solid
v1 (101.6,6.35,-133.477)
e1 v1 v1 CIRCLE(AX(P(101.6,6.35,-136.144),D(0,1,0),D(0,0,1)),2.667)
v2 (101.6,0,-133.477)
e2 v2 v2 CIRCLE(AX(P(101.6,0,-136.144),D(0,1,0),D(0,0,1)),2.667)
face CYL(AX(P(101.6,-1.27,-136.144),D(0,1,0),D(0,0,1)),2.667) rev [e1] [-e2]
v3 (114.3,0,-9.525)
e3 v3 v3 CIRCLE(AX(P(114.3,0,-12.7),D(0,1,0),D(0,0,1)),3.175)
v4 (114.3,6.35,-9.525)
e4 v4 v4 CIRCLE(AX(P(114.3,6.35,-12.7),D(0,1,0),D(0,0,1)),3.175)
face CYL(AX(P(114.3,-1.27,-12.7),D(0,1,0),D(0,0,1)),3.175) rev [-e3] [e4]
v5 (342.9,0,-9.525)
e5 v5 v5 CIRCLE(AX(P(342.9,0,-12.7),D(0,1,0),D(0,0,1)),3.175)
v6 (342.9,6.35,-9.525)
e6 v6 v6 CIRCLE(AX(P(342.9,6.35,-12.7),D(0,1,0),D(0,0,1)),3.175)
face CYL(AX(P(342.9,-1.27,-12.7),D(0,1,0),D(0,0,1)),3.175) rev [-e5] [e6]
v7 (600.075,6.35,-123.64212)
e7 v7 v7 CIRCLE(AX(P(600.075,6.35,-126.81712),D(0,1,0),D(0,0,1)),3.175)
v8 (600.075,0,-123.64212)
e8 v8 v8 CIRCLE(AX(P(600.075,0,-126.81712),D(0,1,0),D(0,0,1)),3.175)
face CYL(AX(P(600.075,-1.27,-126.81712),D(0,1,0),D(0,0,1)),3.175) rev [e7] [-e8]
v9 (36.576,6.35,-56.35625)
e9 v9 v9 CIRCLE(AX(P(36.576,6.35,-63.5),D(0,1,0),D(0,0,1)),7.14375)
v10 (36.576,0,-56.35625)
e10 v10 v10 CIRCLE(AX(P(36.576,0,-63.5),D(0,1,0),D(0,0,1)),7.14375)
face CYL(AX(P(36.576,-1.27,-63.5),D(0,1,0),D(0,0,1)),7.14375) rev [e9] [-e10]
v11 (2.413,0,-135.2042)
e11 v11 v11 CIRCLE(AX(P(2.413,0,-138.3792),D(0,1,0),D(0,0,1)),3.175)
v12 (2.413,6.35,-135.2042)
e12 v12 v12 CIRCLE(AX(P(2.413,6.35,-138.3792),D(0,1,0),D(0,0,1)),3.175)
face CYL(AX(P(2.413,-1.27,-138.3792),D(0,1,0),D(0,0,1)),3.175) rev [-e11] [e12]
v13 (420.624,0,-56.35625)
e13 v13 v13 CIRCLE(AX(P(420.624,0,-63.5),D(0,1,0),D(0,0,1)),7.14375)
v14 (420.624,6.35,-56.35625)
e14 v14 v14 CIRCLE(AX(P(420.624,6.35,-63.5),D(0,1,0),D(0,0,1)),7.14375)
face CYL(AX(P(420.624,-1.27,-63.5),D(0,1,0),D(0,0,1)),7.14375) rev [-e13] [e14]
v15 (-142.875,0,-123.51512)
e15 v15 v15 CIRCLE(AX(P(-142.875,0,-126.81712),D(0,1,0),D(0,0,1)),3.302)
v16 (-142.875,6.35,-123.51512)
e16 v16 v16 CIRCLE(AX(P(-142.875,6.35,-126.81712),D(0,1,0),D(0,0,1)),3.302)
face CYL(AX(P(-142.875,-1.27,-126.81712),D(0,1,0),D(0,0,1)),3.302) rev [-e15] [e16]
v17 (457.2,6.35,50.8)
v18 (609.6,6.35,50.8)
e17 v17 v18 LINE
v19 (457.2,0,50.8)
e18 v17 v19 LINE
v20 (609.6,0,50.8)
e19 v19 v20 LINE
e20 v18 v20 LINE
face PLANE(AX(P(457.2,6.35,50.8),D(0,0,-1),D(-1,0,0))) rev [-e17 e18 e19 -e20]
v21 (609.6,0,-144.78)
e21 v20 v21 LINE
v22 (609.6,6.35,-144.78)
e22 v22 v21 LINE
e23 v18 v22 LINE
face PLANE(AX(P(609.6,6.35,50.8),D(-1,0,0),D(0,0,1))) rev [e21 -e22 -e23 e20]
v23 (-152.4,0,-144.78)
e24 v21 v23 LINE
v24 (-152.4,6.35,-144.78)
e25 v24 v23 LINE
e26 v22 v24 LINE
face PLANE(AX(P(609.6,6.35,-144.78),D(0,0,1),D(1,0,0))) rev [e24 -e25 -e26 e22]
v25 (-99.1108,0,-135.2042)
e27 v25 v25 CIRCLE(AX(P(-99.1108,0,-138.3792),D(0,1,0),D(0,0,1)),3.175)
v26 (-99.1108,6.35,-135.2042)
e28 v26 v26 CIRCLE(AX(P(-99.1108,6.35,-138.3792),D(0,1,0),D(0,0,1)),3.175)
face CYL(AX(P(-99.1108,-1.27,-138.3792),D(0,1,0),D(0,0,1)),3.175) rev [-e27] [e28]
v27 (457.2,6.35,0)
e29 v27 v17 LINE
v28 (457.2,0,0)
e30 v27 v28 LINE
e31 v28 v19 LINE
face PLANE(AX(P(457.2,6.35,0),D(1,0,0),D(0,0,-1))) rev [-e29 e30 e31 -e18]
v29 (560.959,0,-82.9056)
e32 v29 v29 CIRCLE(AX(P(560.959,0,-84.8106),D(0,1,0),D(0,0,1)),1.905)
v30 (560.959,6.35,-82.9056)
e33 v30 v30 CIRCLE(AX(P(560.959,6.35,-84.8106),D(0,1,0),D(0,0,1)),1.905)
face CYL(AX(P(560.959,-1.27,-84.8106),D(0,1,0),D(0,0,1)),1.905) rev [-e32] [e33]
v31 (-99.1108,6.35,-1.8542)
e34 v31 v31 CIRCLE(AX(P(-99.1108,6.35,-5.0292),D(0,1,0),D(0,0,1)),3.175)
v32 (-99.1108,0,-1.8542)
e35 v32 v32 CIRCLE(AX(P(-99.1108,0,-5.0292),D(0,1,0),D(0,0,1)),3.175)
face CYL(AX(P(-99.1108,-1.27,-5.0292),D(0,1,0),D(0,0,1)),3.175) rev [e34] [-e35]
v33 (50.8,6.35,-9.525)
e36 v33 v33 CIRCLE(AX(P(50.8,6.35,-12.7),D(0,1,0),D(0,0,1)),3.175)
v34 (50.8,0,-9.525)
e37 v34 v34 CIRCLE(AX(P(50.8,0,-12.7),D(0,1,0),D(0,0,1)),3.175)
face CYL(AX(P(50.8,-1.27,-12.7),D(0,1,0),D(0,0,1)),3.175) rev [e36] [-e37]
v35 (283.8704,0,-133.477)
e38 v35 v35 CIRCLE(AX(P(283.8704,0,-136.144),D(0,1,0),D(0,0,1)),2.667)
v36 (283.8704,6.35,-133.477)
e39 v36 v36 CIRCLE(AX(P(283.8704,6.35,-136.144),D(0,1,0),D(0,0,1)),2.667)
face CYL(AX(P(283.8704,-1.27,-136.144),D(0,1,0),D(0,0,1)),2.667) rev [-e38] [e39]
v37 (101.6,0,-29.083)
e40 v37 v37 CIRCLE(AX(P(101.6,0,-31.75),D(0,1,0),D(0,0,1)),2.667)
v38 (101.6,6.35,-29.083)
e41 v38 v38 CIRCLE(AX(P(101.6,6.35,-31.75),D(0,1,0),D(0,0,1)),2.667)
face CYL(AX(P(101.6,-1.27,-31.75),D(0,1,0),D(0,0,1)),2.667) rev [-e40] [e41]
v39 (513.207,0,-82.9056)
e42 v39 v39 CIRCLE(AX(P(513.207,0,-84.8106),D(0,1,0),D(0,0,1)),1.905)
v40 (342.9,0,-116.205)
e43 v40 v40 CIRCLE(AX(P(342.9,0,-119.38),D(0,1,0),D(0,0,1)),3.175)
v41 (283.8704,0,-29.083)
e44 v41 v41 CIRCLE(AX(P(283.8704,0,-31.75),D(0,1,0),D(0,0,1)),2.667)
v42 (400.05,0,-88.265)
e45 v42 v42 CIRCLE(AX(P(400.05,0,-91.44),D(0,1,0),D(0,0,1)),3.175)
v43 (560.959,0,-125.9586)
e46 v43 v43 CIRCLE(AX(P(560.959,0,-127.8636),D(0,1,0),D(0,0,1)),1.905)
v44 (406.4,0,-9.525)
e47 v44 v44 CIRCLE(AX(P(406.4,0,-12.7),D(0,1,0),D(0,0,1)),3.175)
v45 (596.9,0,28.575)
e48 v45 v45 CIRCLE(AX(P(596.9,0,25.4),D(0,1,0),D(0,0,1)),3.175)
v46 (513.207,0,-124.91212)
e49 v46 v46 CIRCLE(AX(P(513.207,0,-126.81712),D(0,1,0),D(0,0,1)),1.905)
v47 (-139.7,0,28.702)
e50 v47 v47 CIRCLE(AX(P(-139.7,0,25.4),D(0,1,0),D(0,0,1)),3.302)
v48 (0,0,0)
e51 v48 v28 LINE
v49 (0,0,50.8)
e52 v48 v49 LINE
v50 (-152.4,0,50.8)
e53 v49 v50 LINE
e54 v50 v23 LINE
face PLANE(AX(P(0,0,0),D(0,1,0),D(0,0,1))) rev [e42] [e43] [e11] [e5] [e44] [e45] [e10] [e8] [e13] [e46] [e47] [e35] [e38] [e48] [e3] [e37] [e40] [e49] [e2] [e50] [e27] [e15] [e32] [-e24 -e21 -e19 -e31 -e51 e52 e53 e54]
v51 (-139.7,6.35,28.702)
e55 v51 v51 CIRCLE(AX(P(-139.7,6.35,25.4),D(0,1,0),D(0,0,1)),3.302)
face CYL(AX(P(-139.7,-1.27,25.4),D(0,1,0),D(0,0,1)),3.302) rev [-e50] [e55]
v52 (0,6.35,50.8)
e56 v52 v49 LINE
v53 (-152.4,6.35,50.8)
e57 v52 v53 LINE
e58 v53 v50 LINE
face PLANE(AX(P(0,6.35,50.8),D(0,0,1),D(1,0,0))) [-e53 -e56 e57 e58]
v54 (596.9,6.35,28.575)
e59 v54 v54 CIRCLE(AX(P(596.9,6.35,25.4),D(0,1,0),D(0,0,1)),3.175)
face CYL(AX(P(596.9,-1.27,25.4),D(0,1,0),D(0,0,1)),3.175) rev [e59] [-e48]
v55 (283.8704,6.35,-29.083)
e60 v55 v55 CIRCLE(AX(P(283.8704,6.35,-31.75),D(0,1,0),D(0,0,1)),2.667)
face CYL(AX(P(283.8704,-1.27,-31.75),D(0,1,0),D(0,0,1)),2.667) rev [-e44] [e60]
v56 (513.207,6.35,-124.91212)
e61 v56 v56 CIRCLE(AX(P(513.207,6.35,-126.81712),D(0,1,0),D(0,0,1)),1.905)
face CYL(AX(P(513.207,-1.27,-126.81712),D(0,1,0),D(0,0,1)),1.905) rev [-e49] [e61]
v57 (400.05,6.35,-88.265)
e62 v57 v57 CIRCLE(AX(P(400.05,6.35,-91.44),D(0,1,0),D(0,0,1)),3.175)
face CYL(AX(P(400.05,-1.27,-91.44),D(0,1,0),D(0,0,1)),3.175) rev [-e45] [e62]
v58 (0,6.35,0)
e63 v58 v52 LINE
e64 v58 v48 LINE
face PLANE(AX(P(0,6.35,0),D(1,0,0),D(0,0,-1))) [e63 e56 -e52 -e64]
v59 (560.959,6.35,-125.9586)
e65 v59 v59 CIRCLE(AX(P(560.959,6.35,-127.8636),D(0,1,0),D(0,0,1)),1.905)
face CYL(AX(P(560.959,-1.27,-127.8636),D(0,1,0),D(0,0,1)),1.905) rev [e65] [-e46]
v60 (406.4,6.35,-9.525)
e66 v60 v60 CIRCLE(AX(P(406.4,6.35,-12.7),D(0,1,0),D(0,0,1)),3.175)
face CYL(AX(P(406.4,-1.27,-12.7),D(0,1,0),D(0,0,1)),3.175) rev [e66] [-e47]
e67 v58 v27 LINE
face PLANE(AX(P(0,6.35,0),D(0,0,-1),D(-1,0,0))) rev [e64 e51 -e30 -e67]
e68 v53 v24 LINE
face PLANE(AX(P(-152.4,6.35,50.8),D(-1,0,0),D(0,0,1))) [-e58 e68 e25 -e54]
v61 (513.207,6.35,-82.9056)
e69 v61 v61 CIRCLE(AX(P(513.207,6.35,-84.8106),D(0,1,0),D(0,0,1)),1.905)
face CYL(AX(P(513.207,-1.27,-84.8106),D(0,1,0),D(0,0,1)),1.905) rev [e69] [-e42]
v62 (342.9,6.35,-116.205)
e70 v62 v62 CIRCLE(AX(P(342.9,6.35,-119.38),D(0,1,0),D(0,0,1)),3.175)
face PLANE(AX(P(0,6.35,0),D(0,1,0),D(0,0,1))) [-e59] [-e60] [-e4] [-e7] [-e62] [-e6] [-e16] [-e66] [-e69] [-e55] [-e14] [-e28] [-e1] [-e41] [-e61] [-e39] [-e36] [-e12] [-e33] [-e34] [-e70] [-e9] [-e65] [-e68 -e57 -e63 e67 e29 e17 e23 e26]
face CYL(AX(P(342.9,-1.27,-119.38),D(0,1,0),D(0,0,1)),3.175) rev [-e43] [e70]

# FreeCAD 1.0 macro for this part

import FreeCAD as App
import Part
import Sketcher

V = App.Vector
Q = App.Units.Quantity

doc = App.newDocument("Part")
params = doc.addObject("Spreadsheet::Sheet", "Params")
for row, (alias, value) in enumerate([
    ("sketch1_width", "18 in"),
    ("sketch1_width2", "6 in"),
    ("sketch1_height", "2 in"),
    ("sketch1_height2", "7.7 in"),
    ("pad1_length", "0.25 in"),
    ("sketch2_diameter", "0.26 in"),
    ("sketch2_diameter2", "0.25 in"),
    ("sketch2_diameter3", "0.15 in"),
    ("sketch2_diameter4", "0.5625 in"),
    ("pocket1_length", "0.3 in"),
    ("sketch3_diameter", "0.21 in"),
    ("sketch3_diameter2", "0.25 in"),
    ("pocket2_length", "0.3 in"),
], start=1):
    params.set(f"A{row}", alias)
    params.set(f"B{row}", "=" + value)
    params.setAlias(f"B{row}", alias)

body = doc.addObject("PartDesign::Body", "Body")

# Sketch on XZ plane
sketch1 = body.newObject("Sketcher::SketchObject", "Sketch")
sketch1.AttachmentSupport = (doc.getObject("XZ_Plane"), [""])
sketch1.MapMode = "FlatFace"
sketch1.addGeometry([
    Part.LineSegment(V(0, 0, 0), V(457.2, 0, 0)),  # 0
    Part.LineSegment(V(457.2, 0, 0), V(457.2, 50.8, 0)),  # 1
    Part.LineSegment(V(457.2, 50.8, 0), V(609.6, 50.8, 0)),  # 2
    Part.LineSegment(V(609.6, 50.8, 0), V(609.6, -144.78, 0)),  # 3
    Part.LineSegment(V(609.6, -144.78, 0), V(-152.4, -144.78, 0)),  # 4
    Part.LineSegment(V(-152.4, -144.78, 0), V(-152.4, 50.8, 0)),  # 5
    Part.LineSegment(V(-152.4, 50.8, 0), V(0, 50.8, 0)),  # 6
    Part.LineSegment(V(0, 50.8, 0), V(0, 0, 0)),  # 7
], False)
sketch1.addConstraint([
    Sketcher.Constraint("Coincident", 0, 2, 1, 1),
    Sketcher.Constraint("Coincident", 1, 2, 2, 1),
    Sketcher.Constraint("Coincident", 2, 2, 3, 1),
    Sketcher.Constraint("Coincident", 3, 2, 4, 1),
    Sketcher.Constraint("Coincident", 4, 2, 5, 1),
    Sketcher.Constraint("Coincident", 5, 2, 6, 1),
    Sketcher.Constraint("Coincident", 6, 2, 7, 1),
    Sketcher.Constraint("Coincident", 7, 2, 0, 1),
    Sketcher.Constraint("Horizontal", 0),
    Sketcher.Constraint("Vertical", 1),
    Sketcher.Constraint("Horizontal", 2),
    Sketcher.Constraint("Vertical", 3),
    Sketcher.Constraint("Horizontal", 4),
    Sketcher.Constraint("Vertical", 5),
    Sketcher.Constraint("Horizontal", 6),
    Sketcher.Constraint("Vertical", 7),
    Sketcher.Constraint("Coincident", 7, 2, -1, 1),
    Sketcher.Constraint("Horizontal", 2, 2, 5, 2),
    Sketcher.Constraint("Equal", 2, 6),
    Sketcher.Constraint("DistanceX", 0, 1, 0, 2, Q("18 in")),
    Sketcher.Constraint("DistanceX", 2, 1, 2, 2, Q("6 in")),
    Sketcher.Constraint("DistanceY", 1, 1, 1, 2, Q("2 in")),
    Sketcher.Constraint("DistanceY", 3, 2, 3, 1, Q("7.7 in")),
])
sketch1.setExpression("Constraints[19]", "Params.sketch1_width")
sketch1.setExpression("Constraints[20]", "Params.sketch1_width2")
sketch1.setExpression("Constraints[21]", "Params.sketch1_height")
sketch1.setExpression("Constraints[22]", "Params.sketch1_height2")
pad1 = body.newObject("PartDesign::Pad", "Pad")
pad1.Profile = sketch1
pad1.setExpression("Length", "Params.pad1_length")
pad1.Reversed = True

# Sketch on XZ plane
sketch2 = body.newObject("Sketcher::SketchObject", "Sketch001")
sketch2.AttachmentSupport = (doc.getObject("XZ_Plane"), [""])
sketch2.MapMode = "FlatFace"
sketch2.AttachmentOffset = App.Placement(V(0, 0, -0.25 * 25.4), App.Rotation())
sketch2.addGeometry([
    Part.Circle(V(-139.7, 25.4, 0), V(0, 0, 1), 3.302),  # 0
    Part.Circle(V(-99.1108, -5.0292, 0), V(0, 0, 1), 3.175),  # 1
    Part.Circle(V(-142.875, -126.81712, 0), V(0, 0, 1), 3.302),  # 2
    Part.Circle(V(-99.1108, -138.3792, 0), V(0, 0, 1), 3.175),  # 3
    Part.Circle(V(2.413, -138.3792, 0), V(0, 0, 1), 3.175),  # 4
    Part.Circle(V(36.576, -63.5, 0), V(0, 0, 1), 7.14375),  # 5
    Part.Circle(V(600.075, -126.81712, 0), V(0, 0, 1), 3.175),  # 6
    Part.Circle(V(596.9, 25.4, 0), V(0, 0, 1), 3.175),  # 7
    Part.Circle(V(560.959, -127.8636, 0), V(0, 0, 1), 1.905),  # 8
    Part.Circle(V(513.207, -84.8106, 0), V(0, 0, 1), 1.905),  # 9
    Part.Circle(V(560.959, -84.8106, 0), V(0, 0, 1), 1.905),  # 10
    Part.Circle(V(513.207, -126.81712, 0), V(0, 0, 1), 1.905),  # 11
    Part.Circle(V(420.624, -63.5, 0), V(0, 0, 1), 7.14375),  # 12
], False)
sketch2.addConstraint([
    Sketcher.Constraint("Equal", 0, 2),
    Sketcher.Constraint("Equal", 1, 3),
    Sketcher.Constraint("Equal", 3, 4),
    Sketcher.Constraint("Equal", 4, 6),
    Sketcher.Constraint("Equal", 6, 7),
    Sketcher.Constraint("Equal", 8, 9),
    Sketcher.Constraint("Equal", 9, 10),
    Sketcher.Constraint("Equal", 10, 11),
    Sketcher.Constraint("Equal", 5, 12),
    Sketcher.Constraint("Horizontal", 3, 3, 4, 3),
    Sketcher.Constraint("Horizontal", 2, 3, 6, 3),
    Sketcher.Constraint("Horizontal", 0, 3, 7, 3),
    Sketcher.Constraint("Horizontal", 9, 3, 10, 3),
    Sketcher.Constraint("Horizontal", 6, 3, 11, 3),
    Sketcher.Constraint("Horizontal", 5, 3, 12, 3),
    Sketcher.Constraint("Vertical", 1, 3, 3, 3),
    Sketcher.Constraint("Vertical", 8, 3, 10, 3),
    Sketcher.Constraint("Vertical", 9, 3, 11, 3),
    Sketcher.Constraint("Diameter", 0, Q("0.26 in")),
    Sketcher.Constraint("Diameter", 1, Q("0.25 in")),
    Sketcher.Constraint("Diameter", 8, Q("0.15 in")),
    Sketcher.Constraint("Diameter", 5, Q("0.5625 in")),
    Sketcher.Constraint("DistanceY", -1, 1, 0, 3, Q("1 in")),
    Sketcher.Constraint("DistanceX", 0, 3, -1, 1, Q("5.5 in")),
    Sketcher.Constraint("DistanceY", 5, 3, -1, 1, Q("2.5 in")),
    Sketcher.Constraint("DistanceX", -1, 1, 7, 3, Q("23.5 in")),
    Sketcher.Constraint("DistanceX", -1, 1, 5, 3, Q("1.44 in")),
    Sketcher.Constraint("DistanceX", -1, 1, 12, 3, Q("16.56 in")),
    Sketcher.Constraint("DistanceY", 3, 3, 1, 3, Q("5.25 in")),
    Sketcher.Constraint("DistanceX", 2, 3, 4, 3, Q("5.72 in")),
    Sketcher.Constraint("DistanceX", 4, 3, 6, 3, Q("23.53 in")),
    Sketcher.Constraint("DistanceX", 8, 3, 6, 3, Q("1.54 in")),
    Sketcher.Constraint("DistanceX", 9, 3, 8, 3, Q("1.88 in")),
    Sketcher.Constraint("DistanceX", 1, 3, -1, 1, Q("3.902 in")),
    Sketcher.Constraint("DistanceY", 1, 3, -1, 1, Q("0.198 in")),
    Sketcher.Constraint("DistanceX", 2, 3, -1, 1, Q("5.625 in")),
    Sketcher.Constraint("DistanceY", 8, 3, -1, 1, Q("5.034 in")),
    Sketcher.Constraint("DistanceY", 9, 3, -1, 1, Q("3.339 in")),
    Sketcher.Constraint("DistanceY", 2, 3, -1, 1, Q("4.9928 in")),
])
sketch2.setExpression("Constraints[18]", "Params.sketch2_diameter")
sketch2.setExpression("Constraints[19]", "Params.sketch2_diameter2")
sketch2.setExpression("Constraints[20]", "Params.sketch2_diameter3")
sketch2.setExpression("Constraints[21]", "Params.sketch2_diameter4")
pocket1 = body.newObject("PartDesign::Pocket", "Pocket")
pocket1.Profile = sketch2
pocket1.setExpression("Length", "Params.pocket1_length")
pocket1.Reversed = True

# Sketch on XZ plane
sketch3 = body.newObject("Sketcher::SketchObject", "Sketch002")
sketch3.AttachmentSupport = (doc.getObject("XZ_Plane"), [""])
sketch3.MapMode = "FlatFace"
sketch3.AttachmentOffset = App.Placement(V(0, 0, -0.25 * 25.4), App.Rotation())
sketch3.addGeometry([
    Part.Circle(V(101.6, -136.144, 0), V(0, 0, 1), 2.667),  # 0
    Part.Circle(V(101.6, -31.75, 0), V(0, 0, 1), 2.667),  # 1
    Part.Circle(V(400.05, -91.44, 0), V(0, 0, 1), 3.175),  # 2
    Part.Circle(V(406.4, -12.7, 0), V(0, 0, 1), 3.175),  # 3
    Part.Circle(V(342.9, -119.38, 0), V(0, 0, 1), 3.175),  # 4
    Part.Circle(V(342.9, -12.7, 0), V(0, 0, 1), 3.175),  # 5
    Part.Circle(V(283.8704, -136.144, 0), V(0, 0, 1), 2.667),  # 6
    Part.Circle(V(283.8704, -31.75, 0), V(0, 0, 1), 2.667),  # 7
    Part.Circle(V(114.3, -12.7, 0), V(0, 0, 1), 3.175),  # 8
    Part.Circle(V(50.8, -12.7, 0), V(0, 0, 1), 3.175),  # 9
], False)
sketch3.addConstraint([
    Sketcher.Constraint("Equal", 0, 1),
    Sketcher.Constraint("Equal", 2, 3),
    Sketcher.Constraint("Equal", 3, 4),
    Sketcher.Constraint("Equal", 4, 5),
    Sketcher.Constraint("Equal", 1, 6),
    Sketcher.Constraint("Equal", 6, 7),
    Sketcher.Constraint("Equal", 5, 8),
    Sketcher.Constraint("Equal", 8, 9),
    Sketcher.Constraint("Horizontal", 3, 3, 5, 3),
    Sketcher.Constraint("Horizontal", 0, 3, 6, 3),
    Sketcher.Constraint("Horizontal", 1, 3, 7, 3),
    Sketcher.Constraint("Horizontal", 5, 3, 8, 3),
    Sketcher.Constraint("Horizontal", 8, 3, 9, 3),
    Sketcher.Constraint("Vertical", 0, 3, 1, 3),
    Sketcher.Constraint("Vertical", 4, 3, 5, 3),
    Sketcher.Constraint("Vertical", 6, 3, 7, 3),
    Sketcher.Constraint("Diameter", 0, Q("0.21 in")),
    Sketcher.Constraint("Diameter", 2, Q("0.25 in")),
    Sketcher.Constraint("DistanceX", -1, 1, 0, 3, Q("4 in")),
    Sketcher.Constraint("DistanceX", -1, 1, 3, 3, Q("16 in")),
    Sketcher.Constraint("DistanceX", -1, 1, 9, 3, Q("2 in")),
    Sketcher.Constraint("DistanceX", 8, 3, 5, 3, Q("9 in")),
    Sketcher.Constraint("DistanceY", 2, 3, -1, 1, Q("3.6 in")),
    Sketcher.Constraint("DistanceY", 3, 3, -1, 1, Q("0.5 in")),
    Sketcher.Constraint("DistanceX", -1, 1, 4, 3, Q("13.5 in")),
    Sketcher.Constraint("DistanceY", 4, 3, -1, 1, Q("4.7 in")),
    Sketcher.Constraint("DistanceY", 0, 3, -1, 1, Q("5.36 in")),
    Sketcher.Constraint("DistanceY", 1, 3, -1, 1, Q("1.25 in")),
    Sketcher.Constraint("DistanceX", -1, 1, 2, 3, Q("15.75 in")),
    Sketcher.Constraint("DistanceX", -1, 1, 6, 3, Q("11.176 in")),
])
sketch3.setExpression("Constraints[16]", "Params.sketch3_diameter")
sketch3.setExpression("Constraints[17]", "Params.sketch3_diameter2")
pocket2 = body.newObject("PartDesign::Pocket", "Pocket001")
pocket2.Profile = sketch3
pocket2.setExpression("Length", "Params.pocket2_length")
pocket2.Reversed = True

doc.recompute()
